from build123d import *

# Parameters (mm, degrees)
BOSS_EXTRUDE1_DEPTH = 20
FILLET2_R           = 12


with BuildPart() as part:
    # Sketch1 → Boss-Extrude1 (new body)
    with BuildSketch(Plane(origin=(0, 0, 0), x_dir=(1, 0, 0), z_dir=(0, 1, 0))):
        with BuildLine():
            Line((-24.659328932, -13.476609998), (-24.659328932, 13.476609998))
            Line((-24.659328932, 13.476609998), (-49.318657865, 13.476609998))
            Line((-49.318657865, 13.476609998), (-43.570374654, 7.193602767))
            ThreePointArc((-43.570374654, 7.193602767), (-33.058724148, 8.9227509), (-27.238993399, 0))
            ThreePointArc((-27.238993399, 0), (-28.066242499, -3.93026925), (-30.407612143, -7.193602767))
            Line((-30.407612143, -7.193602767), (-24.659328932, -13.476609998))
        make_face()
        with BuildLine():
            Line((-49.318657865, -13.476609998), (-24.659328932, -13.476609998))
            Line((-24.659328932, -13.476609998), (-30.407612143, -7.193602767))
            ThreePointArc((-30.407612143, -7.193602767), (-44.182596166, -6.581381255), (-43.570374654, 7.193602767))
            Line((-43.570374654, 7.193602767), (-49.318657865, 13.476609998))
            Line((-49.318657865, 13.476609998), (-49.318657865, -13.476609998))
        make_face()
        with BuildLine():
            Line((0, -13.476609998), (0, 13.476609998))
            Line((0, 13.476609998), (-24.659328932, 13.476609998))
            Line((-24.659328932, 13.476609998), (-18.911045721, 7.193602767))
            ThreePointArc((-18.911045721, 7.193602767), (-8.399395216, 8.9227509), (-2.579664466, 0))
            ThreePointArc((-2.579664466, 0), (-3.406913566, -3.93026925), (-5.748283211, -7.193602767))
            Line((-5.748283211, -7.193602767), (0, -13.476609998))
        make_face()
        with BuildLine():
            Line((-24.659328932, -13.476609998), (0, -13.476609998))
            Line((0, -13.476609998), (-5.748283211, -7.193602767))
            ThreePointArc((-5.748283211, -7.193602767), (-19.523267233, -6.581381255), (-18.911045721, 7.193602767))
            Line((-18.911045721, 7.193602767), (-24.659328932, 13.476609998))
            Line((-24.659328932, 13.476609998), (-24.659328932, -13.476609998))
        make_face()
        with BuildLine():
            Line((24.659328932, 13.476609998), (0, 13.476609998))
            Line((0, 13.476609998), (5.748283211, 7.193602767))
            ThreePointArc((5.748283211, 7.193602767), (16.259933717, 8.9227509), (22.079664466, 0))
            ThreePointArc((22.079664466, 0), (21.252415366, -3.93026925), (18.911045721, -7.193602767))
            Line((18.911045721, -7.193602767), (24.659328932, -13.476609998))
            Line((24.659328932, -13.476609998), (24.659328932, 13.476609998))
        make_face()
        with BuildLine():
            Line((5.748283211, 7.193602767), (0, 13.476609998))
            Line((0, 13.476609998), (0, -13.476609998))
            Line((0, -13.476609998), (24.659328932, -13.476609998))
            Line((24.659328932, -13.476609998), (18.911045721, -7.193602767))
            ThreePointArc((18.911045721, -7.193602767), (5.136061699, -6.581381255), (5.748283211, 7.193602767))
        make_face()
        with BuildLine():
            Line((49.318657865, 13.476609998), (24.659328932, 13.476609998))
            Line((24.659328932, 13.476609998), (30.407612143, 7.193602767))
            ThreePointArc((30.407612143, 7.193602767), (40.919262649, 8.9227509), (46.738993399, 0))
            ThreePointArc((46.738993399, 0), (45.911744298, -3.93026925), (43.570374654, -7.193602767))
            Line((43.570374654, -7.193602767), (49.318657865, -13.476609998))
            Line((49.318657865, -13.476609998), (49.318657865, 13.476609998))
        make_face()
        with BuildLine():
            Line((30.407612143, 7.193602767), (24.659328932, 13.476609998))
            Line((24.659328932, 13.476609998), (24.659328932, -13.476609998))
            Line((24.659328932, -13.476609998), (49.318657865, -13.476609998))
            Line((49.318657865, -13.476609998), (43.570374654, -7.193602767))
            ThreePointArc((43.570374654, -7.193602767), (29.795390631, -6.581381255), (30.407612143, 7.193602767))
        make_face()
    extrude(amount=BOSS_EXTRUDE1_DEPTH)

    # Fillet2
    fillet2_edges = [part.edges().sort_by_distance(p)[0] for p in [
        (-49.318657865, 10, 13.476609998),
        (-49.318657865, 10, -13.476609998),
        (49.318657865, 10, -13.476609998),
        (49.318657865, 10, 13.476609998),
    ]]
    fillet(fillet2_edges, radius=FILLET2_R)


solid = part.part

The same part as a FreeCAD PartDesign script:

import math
import FreeCAD as App
import Part
import Sketcher


def edges_at(feature, points):
    """Names of the edges that pass closest to the given points."""
    edges = feature.Shape.Edges
    near = lambda p: min(range(len(edges)), key=lambda i: edges[i].distToShape(Part.Vertex(*p))[0])
    return sorted({f"Edge{near(p) + 1}" for p in points})

doc = App.newDocument("Part")
body = doc.addObject("PartDesign::Body", "Body")

# Sketch on XZ plane
sketch1 = body.newObject("Sketcher::SketchObject", "Sketch")
sketch1.AttachmentSupport = (doc.getObject("XZ_Plane"), [""])
sketch1.MapMode = "FlatFace"
sketch1.addGeometry(Part.LineSegment(App.Vector(-49.318658, -13.47661, 0), App.Vector(-49.318658, 13.47661, 0)), False)
sketch1.addGeometry(Part.LineSegment(App.Vector(-49.318658, 13.47661, 0), App.Vector(49.318658, 13.47661, 0)), False)
sketch1.addGeometry(Part.LineSegment(App.Vector(49.318658, 13.47661, 0), App.Vector(49.318658, -13.47661, 0)), False)
sketch1.addGeometry(Part.LineSegment(App.Vector(49.318658, -13.47661, 0), App.Vector(-49.318658, -13.47661, 0)), False)
sketch1.addGeometry(Part.ArcOfCircle(Part.Circle(App.Vector(-36.988993, 0, 0), App.Vector(0, 0, 1), 9.75), math.radians(-132.455196), math.radians(0)), False)
sketch1.addGeometry(Part.ArcOfCircle(Part.Circle(App.Vector(-36.988993, 0, 0), App.Vector(0, 0, 1), 9.75), math.radians(0), math.radians(47.544804)), False)
sketch1.addGeometry(Part.ArcOfCircle(Part.Circle(App.Vector(-36.988993, 0, 0), App.Vector(0, 0, 1), 9.75), math.radians(47.544804), math.radians(227.544804)), False)
sketch1.addGeometry(Part.ArcOfCircle(Part.Circle(App.Vector(-12.329664, 0, 0), App.Vector(0, 0, 1), 9.75), math.radians(47.544804), math.radians(227.544804)), False)
sketch1.addGeometry(Part.ArcOfCircle(Part.Circle(App.Vector(-12.329664, 0, 0), App.Vector(0, 0, 1), 9.75), math.radians(-132.455196), math.radians(0)), False)
sketch1.addGeometry(Part.ArcOfCircle(Part.Circle(App.Vector(-12.329664, 0, 0), App.Vector(0, 0, 1), 9.75), math.radians(0), math.radians(47.544804)), False)
sketch1.addGeometry(Part.ArcOfCircle(Part.Circle(App.Vector(12.329664, 0, 0), App.Vector(0, 0, 1), 9.75), math.radians(47.544804), math.radians(227.544804)), False)
sketch1.addGeometry(Part.ArcOfCircle(Part.Circle(App.Vector(12.329664, 0, 0), App.Vector(0, 0, 1), 9.75), math.radians(-132.455196), math.radians(0)), False)
sketch1.addGeometry(Part.ArcOfCircle(Part.Circle(App.Vector(12.329664, 0, 0), App.Vector(0, 0, 1), 9.75), math.radians(0), math.radians(47.544804)), False)
sketch1.addGeometry(Part.ArcOfCircle(Part.Circle(App.Vector(36.988993, 0, 0), App.Vector(0, 0, 1), 9.75), math.radians(47.544804), math.radians(227.544804)), False)
sketch1.addGeometry(Part.ArcOfCircle(Part.Circle(App.Vector(36.988993, 0, 0), App.Vector(0, 0, 1), 9.75), math.radians(-132.455196), math.radians(0)), False)
sketch1.addGeometry(Part.ArcOfCircle(Part.Circle(App.Vector(36.988993, 0, 0), App.Vector(0, 0, 1), 9.75), math.radians(0), math.radians(47.544804)), False)
sketch1.addConstraint(Sketcher.Constraint("Coincident", 0, 2, 1, 1))
sketch1.addConstraint(Sketcher.Constraint("Coincident", 1, 2, 2, 1))
sketch1.addConstraint(Sketcher.Constraint("Coincident", 2, 2, 3, 1))
sketch1.addConstraint(Sketcher.Constraint("Coincident", 3, 2, 0, 1))
sketch1.addConstraint(Sketcher.Constraint("Tangent", 4, 2, 5, 1))
sketch1.addConstraint(Sketcher.Constraint("Tangent", 5, 2, 6, 1))
sketch1.addConstraint(Sketcher.Constraint("Tangent", 6, 2, 4, 1))
sketch1.addConstraint(Sketcher.Constraint("Tangent", 7, 2, 8, 1))
sketch1.addConstraint(Sketcher.Constraint("Tangent", 8, 2, 9, 1))
sketch1.addConstraint(Sketcher.Constraint("Tangent", 9, 2, 7, 1))
sketch1.addConstraint(Sketcher.Constraint("Tangent", 10, 2, 11, 1))
sketch1.addConstraint(Sketcher.Constraint("Tangent", 11, 2, 12, 1))
sketch1.addConstraint(Sketcher.Constraint("Tangent", 12, 2, 10, 1))
sketch1.addConstraint(Sketcher.Constraint("Tangent", 13, 2, 14, 1))
sketch1.addConstraint(Sketcher.Constraint("Tangent", 14, 2, 15, 1))
sketch1.addConstraint(Sketcher.Constraint("Tangent", 15, 2, 13, 1))
sketch1.addConstraint(Sketcher.Constraint("Vertical", 0))
sketch1.addConstraint(Sketcher.Constraint("Horizontal", 1))
sketch1.addConstraint(Sketcher.Constraint("Vertical", 2))
sketch1.addConstraint(Sketcher.Constraint("Horizontal", 3))
sketch1.addConstraint(Sketcher.Constraint("Equal", 6, 7))
sketch1.addConstraint(Sketcher.Constraint("Equal", 9, 10))
sketch1.addConstraint(Sketcher.Constraint("Equal", 12, 13))
sketch1.addConstraint(Sketcher.Constraint("Symmetric", 7, 3, 10, 3, -1, 1))
sketch1.addConstraint(Sketcher.Constraint("Symmetric", 4, 3, 13, 3, -1, 1))
sketch1.addConstraint(Sketcher.Constraint("Symmetric", 0, 2, 2, 2, -1, 1))
sketch1.addConstraint(Sketcher.Constraint("PointOnObject", 4, 3, -1))
sketch1.addConstraint(Sketcher.Constraint("PointOnObject", 7, 3, -1))
sketch1.addConstraint(Sketcher.Constraint("PointOnObject", 4, 2, -1))
sketch1.addConstraint(Sketcher.Constraint("PointOnObject", 8, 2, -1))
sketch1.addConstraint(Sketcher.Constraint("PointOnObject", 11, 2, -1))
sketch1.addConstraint(Sketcher.Constraint("PointOnObject", 14, 2, -1))
sketch1.addConstraint(Sketcher.Constraint("Horizontal", 6, 2, 7, 2))
sketch1.addConstraint(Sketcher.Constraint("Horizontal", 5, 2, 9, 2))
sketch1.addConstraint(Sketcher.Constraint("Horizontal", 7, 2, 10, 2))
sketch1.addConstraint(Sketcher.Constraint("Horizontal", 9, 2, 12, 2))
sketch1.addConstraint(Sketcher.Constraint("Horizontal", 10, 2, 13, 2))
sketch1.addConstraint(Sketcher.Constraint("Horizontal", 12, 2, 15, 2))
sketch1.addConstraint(Sketcher.Constraint("Radius", 4, 9.75))
sketch1.addConstraint(Sketcher.Constraint("DistanceY", 0, 1, 0, 2, 26.95322))
sketch1.addConstraint(Sketcher.Constraint("DistanceX", 1, 1, 1, 2, 98.637316))
sketch1.addConstraint(Sketcher.Constraint("DistanceX", 4, 3, 7, 3, 24.659329))
sketch1.addConstraint(Sketcher.Constraint("DistanceX", 9, 3, 10, 3, 24.659329))
sketch1.addConstraint(Sketcher.Constraint("DistanceX", 5, 2, 4, 2, 3.168619))
sketch1.addConstraint(Sketcher.Constraint("DistanceX", 6, 2, 5, 3, 6.581381))
pad1 = body.newObject("PartDesign::Pad", "Pad")
pad1.Profile = sketch1
pad1.Length = 20
pad1.Reversed = True
doc.recompute()

fillet = body.newObject("PartDesign::Fillet", "Fillet")
fillet.Base = (pad1, edges_at(pad1, [
    (-49.319, 10, 13.477),
    (-49.319, 10, -13.477),
    (49.319, 10, -13.477),
    (49.319, 10, 13.477),
]))
fillet.Radius = 12

doc.recompute()
